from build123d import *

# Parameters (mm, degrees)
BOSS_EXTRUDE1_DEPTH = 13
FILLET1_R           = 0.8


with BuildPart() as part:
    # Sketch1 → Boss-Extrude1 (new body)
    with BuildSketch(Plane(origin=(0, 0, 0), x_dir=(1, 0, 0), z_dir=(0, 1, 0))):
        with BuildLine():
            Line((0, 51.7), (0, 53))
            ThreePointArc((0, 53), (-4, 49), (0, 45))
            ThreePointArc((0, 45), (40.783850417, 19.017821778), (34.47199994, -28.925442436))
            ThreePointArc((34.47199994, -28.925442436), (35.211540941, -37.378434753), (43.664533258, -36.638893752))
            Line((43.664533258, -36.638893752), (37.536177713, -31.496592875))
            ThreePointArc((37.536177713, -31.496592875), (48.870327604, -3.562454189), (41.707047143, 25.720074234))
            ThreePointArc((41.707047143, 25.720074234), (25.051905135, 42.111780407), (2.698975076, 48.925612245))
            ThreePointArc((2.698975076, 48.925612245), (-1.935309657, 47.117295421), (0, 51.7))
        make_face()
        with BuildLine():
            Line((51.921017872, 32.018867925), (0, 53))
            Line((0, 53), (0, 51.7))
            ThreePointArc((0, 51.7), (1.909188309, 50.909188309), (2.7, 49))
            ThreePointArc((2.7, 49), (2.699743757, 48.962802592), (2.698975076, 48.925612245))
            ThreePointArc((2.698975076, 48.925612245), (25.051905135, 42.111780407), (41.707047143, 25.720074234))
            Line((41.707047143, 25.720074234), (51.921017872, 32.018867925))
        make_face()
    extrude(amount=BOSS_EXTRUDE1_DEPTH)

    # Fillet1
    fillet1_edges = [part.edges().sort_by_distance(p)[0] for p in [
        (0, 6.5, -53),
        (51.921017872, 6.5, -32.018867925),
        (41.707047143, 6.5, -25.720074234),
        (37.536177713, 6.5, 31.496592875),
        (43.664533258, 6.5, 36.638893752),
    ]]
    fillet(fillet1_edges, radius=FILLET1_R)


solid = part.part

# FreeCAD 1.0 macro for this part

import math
import FreeCAD as App
import Part
import Sketcher
from FreeCAD import Vector
Q = App.Units.Quantity


def edges_at(feature, points):
    """Names of the edges that pass closest to the given points."""
    edges = feature.Shape.Edges
    near = lambda p: min(range(len(edges)), key=lambda i: edges[i].distToShape(Part.Vertex(*p))[0])
    return sorted({f"Edge{near(p) + 1}" for p in points})

doc = App.newDocument("Part")
body = doc.addObject("PartDesign::Body", "Body")

sketch1 = body.newObject("Sketcher::SketchObject", "Sketch")
sketch1.AttachmentSupport = (doc.getObject("XZ_Plane"), [""])
sketch1.MapMode = "FlatFace"
sketch1.addGeometry([
    Part.ArcOfCircle(Part.Circle(Vector(0, -49, 0), Vector(0, 0, 1), 4), math.radians(90), math.radians(270)),
    Part.ArcOfCircle(Part.Circle(Vector(0, 0, 0), Vector(0, 0, 1), 45), math.radians(-90), math.radians(40)),
    Part.ArcOfCircle(Part.Circle(Vector(39.07, 32.78, 0), Vector(0, 0, 1), 6), math.radians(40), math.radians(220)),
    Part.LineSegment(Vector(43.66, 36.64, 0), Vector(37.54, 31.5, 0)),
    Part.ArcOfCircle(Part.Circle(Vector(0, 0, 0), Vector(0, 0, 1), 49), math.radians(-32), math.radians(40)),
    Part.LineSegment(Vector(41.71, -25.72, 0), Vector(51.92, -32.02, 0)),
    Part.LineSegment(Vector(51.92, -32.02, 0), Vector(0, -53, 0)),
    Part.ArcOfCircle(Part.Circle(Vector(0, -49, 0), Vector(0, 0, 1), 2.7), math.radians(2), math.radians(270)),
    Part.ArcOfCircle(Part.Circle(Vector(0, -49, 0), Vector(0, 0, 1), 2.7), math.radians(-90), math.radians(0)),
    Part.ArcOfCircle(Part.Circle(Vector(0, -49, 0), Vector(0, 0, 1), 2.7), math.radians(0), math.radians(1.58)),
], False)
sketch1.addConstraint([
    Sketcher.Constraint("Tangent", 0, 1, 1, 1),
    Sketcher.Constraint("Tangent", 1, 2, 2, 2),
    Sketcher.Constraint("Coincident", 2, 1, 3, 1),
    Sketcher.Constraint("Coincident", 3, 2, 4, 2),
    Sketcher.Constraint("Coincident", 4, 1, 5, 1),
    Sketcher.Constraint("Coincident", 5, 2, 6, 1),
    Sketcher.Constraint("Coincident", 6, 2, 0, 2),
    Sketcher.Constraint("Tangent", 7, 2, 8, 1),
    Sketcher.Constraint("Tangent", 8, 2, 9, 1),
    Sketcher.Constraint("Tangent", 9, 2, 7, 1),
    Sketcher.Constraint("Coincident", 1, 3, -1, 1),
    Sketcher.Constraint("Coincident", 4, 3, -1, 1),
    Sketcher.Constraint("Coincident", 7, 3, 0, 3),
    Sketcher.Constraint("PointOnObject", 0, 3, -2),
    Sketcher.Constraint("PointOnObject", 6, 2, -2),
    Sketcher.Constraint("PointOnObject", 7, 2, -2),
    Sketcher.Constraint("Horizontal", 9, 3, 8, 2),
    Sketcher.Constraint("Radius", 0, Q("4 mm")),
    Sketcher.Constraint("Radius", 1, Q("45 mm")),
    Sketcher.Constraint("Radius", 2, Q("6 mm")),
    Sketcher.Constraint("Radius", 4, Q("49 mm")),
    Sketcher.Constraint("Radius", 7, Q("2.7 mm")),
    Sketcher.Constraint("Angle", 3, Q("-140 deg")),
    Sketcher.Constraint("Distance", 5, Q("12 mm")),
    Sketcher.Constraint("Distance", 6, Q("56 mm")),
    Sketcher.Constraint("DistanceX", -1, 1, 1, 2, Q("34.472 mm")),
    Sketcher.Constraint("DistanceY", 1, 2, 2, 1, Q("7.713451 mm")),
    Sketcher.Constraint("DistanceX", 4, 1, 5, 2, Q("10.213971 mm")),
    Sketcher.Constraint("DistanceX", -1, 1, 9, 2, Q("2.698975 mm")),
])
pad1 = body.newObject("PartDesign::Pad", "Pad")
pad1.Profile = sketch1
pad1.Length = 13
pad1.Reversed = True
doc.recompute()

fillet = body.newObject("PartDesign::Fillet", "Fillet")
fillet.Base = (pad1, edges_at(pad1, [
    (0, 6.5, -53),
    (51.921, 6.5, -32.019),
    (41.707, 6.5, -25.72),
    (37.536, 6.5, 31.497),
    (43.665, 6.5, 36.639),
]))
fillet.Radius = 0.8

doc.recompute()
